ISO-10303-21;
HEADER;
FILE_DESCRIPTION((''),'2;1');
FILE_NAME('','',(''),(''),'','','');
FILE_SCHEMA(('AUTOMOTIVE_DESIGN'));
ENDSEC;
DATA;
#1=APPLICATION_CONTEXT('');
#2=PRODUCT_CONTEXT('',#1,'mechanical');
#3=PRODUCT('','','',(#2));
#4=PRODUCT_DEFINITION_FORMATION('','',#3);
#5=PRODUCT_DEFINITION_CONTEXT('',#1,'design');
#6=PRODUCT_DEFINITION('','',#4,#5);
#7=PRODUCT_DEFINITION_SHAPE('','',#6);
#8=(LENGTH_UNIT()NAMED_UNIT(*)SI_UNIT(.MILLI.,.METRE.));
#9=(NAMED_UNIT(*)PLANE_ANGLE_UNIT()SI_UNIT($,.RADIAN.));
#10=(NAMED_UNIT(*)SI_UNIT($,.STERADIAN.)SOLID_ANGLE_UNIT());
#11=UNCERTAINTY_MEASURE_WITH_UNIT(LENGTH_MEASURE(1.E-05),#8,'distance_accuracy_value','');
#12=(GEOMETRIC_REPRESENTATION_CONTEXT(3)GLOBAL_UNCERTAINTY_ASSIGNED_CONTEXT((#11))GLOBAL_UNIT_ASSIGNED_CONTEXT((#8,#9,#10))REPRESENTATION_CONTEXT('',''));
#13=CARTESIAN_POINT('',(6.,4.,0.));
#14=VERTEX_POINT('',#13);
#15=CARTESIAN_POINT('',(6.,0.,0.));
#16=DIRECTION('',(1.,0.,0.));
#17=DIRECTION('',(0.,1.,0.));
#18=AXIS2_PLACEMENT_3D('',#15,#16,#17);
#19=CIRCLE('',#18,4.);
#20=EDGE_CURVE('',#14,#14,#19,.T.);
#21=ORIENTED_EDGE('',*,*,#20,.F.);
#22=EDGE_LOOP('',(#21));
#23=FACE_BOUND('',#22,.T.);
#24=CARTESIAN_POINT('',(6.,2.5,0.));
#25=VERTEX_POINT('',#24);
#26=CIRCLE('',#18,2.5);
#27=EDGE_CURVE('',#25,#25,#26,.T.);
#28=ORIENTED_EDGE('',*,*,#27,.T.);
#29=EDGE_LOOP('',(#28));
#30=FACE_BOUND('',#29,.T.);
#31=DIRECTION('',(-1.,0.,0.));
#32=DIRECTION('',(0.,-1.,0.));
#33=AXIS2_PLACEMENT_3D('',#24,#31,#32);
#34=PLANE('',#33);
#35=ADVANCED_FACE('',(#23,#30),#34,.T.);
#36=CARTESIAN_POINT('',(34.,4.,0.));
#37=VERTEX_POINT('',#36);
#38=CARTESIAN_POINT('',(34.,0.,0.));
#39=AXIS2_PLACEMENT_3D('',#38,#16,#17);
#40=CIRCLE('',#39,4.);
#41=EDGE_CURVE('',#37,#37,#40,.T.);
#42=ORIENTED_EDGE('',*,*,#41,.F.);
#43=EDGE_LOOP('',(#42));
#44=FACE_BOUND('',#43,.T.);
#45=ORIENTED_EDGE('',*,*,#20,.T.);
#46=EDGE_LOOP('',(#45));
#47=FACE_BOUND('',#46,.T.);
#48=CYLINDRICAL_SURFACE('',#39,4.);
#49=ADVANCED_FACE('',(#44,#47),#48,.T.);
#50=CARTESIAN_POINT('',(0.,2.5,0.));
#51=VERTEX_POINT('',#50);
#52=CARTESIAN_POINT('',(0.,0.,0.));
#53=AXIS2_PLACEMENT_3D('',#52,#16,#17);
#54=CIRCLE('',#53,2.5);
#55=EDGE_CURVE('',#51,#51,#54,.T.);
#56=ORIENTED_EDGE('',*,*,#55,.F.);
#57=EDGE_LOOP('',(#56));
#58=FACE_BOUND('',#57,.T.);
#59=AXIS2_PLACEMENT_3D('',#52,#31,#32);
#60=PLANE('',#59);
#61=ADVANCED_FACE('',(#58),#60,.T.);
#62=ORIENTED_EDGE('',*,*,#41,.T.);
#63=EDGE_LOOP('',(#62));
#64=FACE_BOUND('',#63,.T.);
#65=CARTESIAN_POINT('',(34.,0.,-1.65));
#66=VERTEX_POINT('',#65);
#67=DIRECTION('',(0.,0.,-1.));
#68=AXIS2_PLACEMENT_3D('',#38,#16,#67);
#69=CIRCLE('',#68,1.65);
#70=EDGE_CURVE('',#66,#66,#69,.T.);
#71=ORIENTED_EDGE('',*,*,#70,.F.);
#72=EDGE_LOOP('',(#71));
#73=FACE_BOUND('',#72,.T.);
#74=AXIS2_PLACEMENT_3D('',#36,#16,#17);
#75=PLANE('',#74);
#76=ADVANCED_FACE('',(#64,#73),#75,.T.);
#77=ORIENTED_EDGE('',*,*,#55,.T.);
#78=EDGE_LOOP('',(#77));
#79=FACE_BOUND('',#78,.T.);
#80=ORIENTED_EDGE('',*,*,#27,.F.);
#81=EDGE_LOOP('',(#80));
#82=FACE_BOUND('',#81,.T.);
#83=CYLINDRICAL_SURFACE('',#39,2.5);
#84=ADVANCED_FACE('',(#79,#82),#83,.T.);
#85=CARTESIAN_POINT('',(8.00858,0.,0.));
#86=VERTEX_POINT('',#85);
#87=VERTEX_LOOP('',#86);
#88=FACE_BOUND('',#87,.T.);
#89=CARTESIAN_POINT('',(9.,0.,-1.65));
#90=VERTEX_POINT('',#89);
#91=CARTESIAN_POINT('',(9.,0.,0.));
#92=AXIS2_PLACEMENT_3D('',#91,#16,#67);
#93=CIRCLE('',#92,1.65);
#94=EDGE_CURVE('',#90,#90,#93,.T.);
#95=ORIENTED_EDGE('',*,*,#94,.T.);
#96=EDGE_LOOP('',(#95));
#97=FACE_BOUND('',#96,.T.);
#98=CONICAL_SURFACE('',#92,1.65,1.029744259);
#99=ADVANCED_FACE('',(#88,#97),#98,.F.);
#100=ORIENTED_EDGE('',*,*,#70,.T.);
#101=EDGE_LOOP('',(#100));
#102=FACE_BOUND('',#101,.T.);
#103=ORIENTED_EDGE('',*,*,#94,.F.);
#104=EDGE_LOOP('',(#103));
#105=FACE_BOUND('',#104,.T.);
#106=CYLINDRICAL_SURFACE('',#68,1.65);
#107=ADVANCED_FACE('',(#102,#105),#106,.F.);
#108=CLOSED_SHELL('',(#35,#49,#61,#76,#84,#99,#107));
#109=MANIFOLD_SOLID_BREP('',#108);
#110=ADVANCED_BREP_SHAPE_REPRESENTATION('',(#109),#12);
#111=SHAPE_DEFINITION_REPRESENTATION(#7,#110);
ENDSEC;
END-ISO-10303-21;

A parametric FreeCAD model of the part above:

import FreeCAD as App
import Part
import Sketcher
Q = App.Units.Quantity


def add_polygon(sketch, points):
    """Adds a closed chain of lines whose ends are joined by coincident constraints."""
    first, n = sketch.GeometryCount, len(points)
    for a, b in zip(points, points[1:] + points[:1]):
        sketch.addGeometry(Part.LineSegment(App.Vector(*a, 0), App.Vector(*b, 0)), False)
    for i in range(n):
        sketch.addConstraint(Sketcher.Constraint("Coincident", first + i, 2, first + (i + 1) % n, 1))

doc = App.newDocument("Part")
params = doc.addObject("Spreadsheet::Sheet", "Params")
for row, (alias, value) in enumerate([
    ("sketch1_width", "34 mm"),
    ("sketch1_width2", "28 mm"),
    ("sketch1_height", "4 mm"),
    ("sketch1_height2", "2.5 mm"),
    ("revolution_angle", "360 deg"),
    ("sketch2_diameter", "3.3 mm"),
    ("hole_diameter", "3.3 mm"),
    ("hole_depth", "25 mm"),
], start=1):
    params.set(f"A{row}", alias)
    params.set(f"B{row}", "=" + value)
    params.setAlias(f"B{row}", alias)

body = doc.addObject("PartDesign::Body", "Body")

# Sketch on XY plane
sketch1 = body.newObject("Sketcher::SketchObject", "Sketch")
sketch1.AttachmentSupport = (doc.getObject("XY_Plane"), [""])
sketch1.MapMode = "FlatFace"
add_polygon(sketch1, [(0, 2.5), (0, 0), (34, 0), (34, 4), (6, 4), (6, 2.5)])  # lines 0-5
sketch1.addConstraint([
    Sketcher.Constraint("Vertical", 0),
    Sketcher.Constraint("Horizontal", 1),
    Sketcher.Constraint("Vertical", 2),
    Sketcher.Constraint("Horizontal", 3),
    Sketcher.Constraint("Vertical", 4),
    Sketcher.Constraint("Horizontal", 5),
    Sketcher.Constraint("Coincident", 0, 2, -1, 1),
    Sketcher.Constraint("DistanceX", 1, 1, 1, 2, Q("34 mm")),
    Sketcher.Constraint("DistanceX", 3, 2, 3, 1, Q("28 mm")),
    Sketcher.Constraint("DistanceY", 2, 1, 2, 2, Q("4 mm")),
    Sketcher.Constraint("DistanceY", 0, 2, 0, 1, Q("2.5 mm")),
])
sketch1.setExpression("Constraints[13]", "Params.sketch1_width")
sketch1.setExpression("Constraints[14]", "Params.sketch1_width2")
sketch1.setExpression("Constraints[15]", "Params.sketch1_height")
sketch1.setExpression("Constraints[16]", "Params.sketch1_height2")
revolution = body.newObject("PartDesign::Revolution", "Revolution")
revolution.Profile = sketch1
revolution.ReferenceAxis = (sketch1, ["H_Axis"])
revolution.setExpression("Angle", "Params.revolution_angle")

# Sketch on YZ plane
sketch2 = body.newObject("Sketcher::SketchObject", "Sketch001")
sketch2.AttachmentSupport = (doc.getObject("YZ_Plane"), [""])
sketch2.MapMode = "FlatFace"
sketch2.AttachmentOffset = App.Placement(App.Vector(0, 0, 34), App.Rotation())
sketch2.addGeometry(Part.Circle(App.Vector(0, 0, 0), App.Vector(0, 0, 1), 1.6), False)
sketch2.addConstraint([
    Sketcher.Constraint("Coincident", 0, 3, -1, 1),
    Sketcher.Constraint("Diameter", 0, Q("3.3 mm")),
])
sketch2.setExpression("Constraints[1]", "Params.sketch2_diameter")
doc.recompute()
hole = body.newObject("PartDesign::Hole", "Hole")
hole.Profile = sketch2
hole.ThreadType = "None"
hole.setExpression("Diameter", "Params.hole_diameter")
hole.DepthType = "Dimension"
hole.setExpression("Depth", "Params.hole_depth")
hole.DrillPoint = "Angled"
hole.DrillPointAngle = 118

doc.recompute()
